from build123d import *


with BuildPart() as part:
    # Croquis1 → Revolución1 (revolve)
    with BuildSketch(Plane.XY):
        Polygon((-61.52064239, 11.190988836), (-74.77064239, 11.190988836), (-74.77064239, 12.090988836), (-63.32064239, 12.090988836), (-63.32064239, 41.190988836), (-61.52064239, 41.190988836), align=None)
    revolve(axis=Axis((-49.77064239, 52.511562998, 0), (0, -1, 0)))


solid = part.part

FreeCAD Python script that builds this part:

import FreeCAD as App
import Part
import Sketcher

V = App.Vector

doc = App.newDocument("Part")
body = doc.addObject("PartDesign::Body", "Body")

# Sketch on XY plane
sketch1 = body.newObject("Sketcher::SketchObject", "Sketch")
sketch1.AttachmentSupport = (doc.getObject("XY_Plane"), [""])
sketch1.MapMode = "FlatFace"
sketch1.addGeometry([
    Part.LineSegment(V(-74.8, 11.2, 0), V(-61.5, 11.2, 0)),  # 0
    Part.LineSegment(V(-61.5, 11.2, 0), V(-61.5, 41.2, 0)),  # 1
    Part.LineSegment(V(-61.5, 41.2, 0), V(-63.3, 41.2, 0)),  # 2
    Part.LineSegment(V(-63.3, 41.2, 0), V(-63.3, 12.1, 0)),  # 3
    Part.LineSegment(V(-63.3, 12.1, 0), V(-74.8, 12.1, 0)),  # 4
    Part.LineSegment(V(-74.8, 12.1, 0), V(-74.8, 11.2, 0)),  # 5
], False)
sketch1.addGeometry(Part.LineSegment(V(-49.8, 41.2, 0), V(-49.8, 11.2, 0)), True)  # axis
sketch1.addConstraint([
    Sketcher.Constraint("Coincident", 0, 2, 1, 1),
    Sketcher.Constraint("Coincident", 1, 2, 2, 1),
    Sketcher.Constraint("Coincident", 2, 2, 3, 1),
    Sketcher.Constraint("Coincident", 3, 2, 4, 1),
    Sketcher.Constraint("Coincident", 4, 2, 5, 1),
    Sketcher.Constraint("Coincident", 5, 2, 0, 1),
    Sketcher.Constraint("Horizontal", 0),
    Sketcher.Constraint("Vertical", 1),
    Sketcher.Constraint("Horizontal", 2),
    Sketcher.Constraint("Vertical", 3),
    Sketcher.Constraint("Horizontal", 4),
    Sketcher.Constraint("Vertical", 5),
    Sketcher.Constraint("Vertical", 6),
    Sketcher.Constraint("Horizontal", 2, 2, 6, 1),
    Sketcher.Constraint("Horizontal", 5, 2, 6, 2),
    Sketcher.Constraint("DistanceY", 1, 1, 1, 2, 30.0),
    Sketcher.Constraint("DistanceX", 2, 2, 2, 1, 1.8),
    Sketcher.Constraint("DistanceY", 3, 2, 3, 1, 29.1),
    Sketcher.Constraint("DistanceX", 4, 2, 6, 1, 25.0),
    Sketcher.Constraint("DistanceX", 0, 1, 0, 2, 13.25),
    Sketcher.Constraint("DistanceY", -1, 1, 0, 2, 11.190989),
    Sketcher.Constraint("DistanceX", 0, 2, -1, 1, 61.520642),
])
revolution = body.newObject("PartDesign::Revolution", "Revolution")
revolution.Profile = sketch1
revolution.ReferenceAxis = (sketch1, ["Axis0"])
revolution.Angle = 360

doc.recompute()
